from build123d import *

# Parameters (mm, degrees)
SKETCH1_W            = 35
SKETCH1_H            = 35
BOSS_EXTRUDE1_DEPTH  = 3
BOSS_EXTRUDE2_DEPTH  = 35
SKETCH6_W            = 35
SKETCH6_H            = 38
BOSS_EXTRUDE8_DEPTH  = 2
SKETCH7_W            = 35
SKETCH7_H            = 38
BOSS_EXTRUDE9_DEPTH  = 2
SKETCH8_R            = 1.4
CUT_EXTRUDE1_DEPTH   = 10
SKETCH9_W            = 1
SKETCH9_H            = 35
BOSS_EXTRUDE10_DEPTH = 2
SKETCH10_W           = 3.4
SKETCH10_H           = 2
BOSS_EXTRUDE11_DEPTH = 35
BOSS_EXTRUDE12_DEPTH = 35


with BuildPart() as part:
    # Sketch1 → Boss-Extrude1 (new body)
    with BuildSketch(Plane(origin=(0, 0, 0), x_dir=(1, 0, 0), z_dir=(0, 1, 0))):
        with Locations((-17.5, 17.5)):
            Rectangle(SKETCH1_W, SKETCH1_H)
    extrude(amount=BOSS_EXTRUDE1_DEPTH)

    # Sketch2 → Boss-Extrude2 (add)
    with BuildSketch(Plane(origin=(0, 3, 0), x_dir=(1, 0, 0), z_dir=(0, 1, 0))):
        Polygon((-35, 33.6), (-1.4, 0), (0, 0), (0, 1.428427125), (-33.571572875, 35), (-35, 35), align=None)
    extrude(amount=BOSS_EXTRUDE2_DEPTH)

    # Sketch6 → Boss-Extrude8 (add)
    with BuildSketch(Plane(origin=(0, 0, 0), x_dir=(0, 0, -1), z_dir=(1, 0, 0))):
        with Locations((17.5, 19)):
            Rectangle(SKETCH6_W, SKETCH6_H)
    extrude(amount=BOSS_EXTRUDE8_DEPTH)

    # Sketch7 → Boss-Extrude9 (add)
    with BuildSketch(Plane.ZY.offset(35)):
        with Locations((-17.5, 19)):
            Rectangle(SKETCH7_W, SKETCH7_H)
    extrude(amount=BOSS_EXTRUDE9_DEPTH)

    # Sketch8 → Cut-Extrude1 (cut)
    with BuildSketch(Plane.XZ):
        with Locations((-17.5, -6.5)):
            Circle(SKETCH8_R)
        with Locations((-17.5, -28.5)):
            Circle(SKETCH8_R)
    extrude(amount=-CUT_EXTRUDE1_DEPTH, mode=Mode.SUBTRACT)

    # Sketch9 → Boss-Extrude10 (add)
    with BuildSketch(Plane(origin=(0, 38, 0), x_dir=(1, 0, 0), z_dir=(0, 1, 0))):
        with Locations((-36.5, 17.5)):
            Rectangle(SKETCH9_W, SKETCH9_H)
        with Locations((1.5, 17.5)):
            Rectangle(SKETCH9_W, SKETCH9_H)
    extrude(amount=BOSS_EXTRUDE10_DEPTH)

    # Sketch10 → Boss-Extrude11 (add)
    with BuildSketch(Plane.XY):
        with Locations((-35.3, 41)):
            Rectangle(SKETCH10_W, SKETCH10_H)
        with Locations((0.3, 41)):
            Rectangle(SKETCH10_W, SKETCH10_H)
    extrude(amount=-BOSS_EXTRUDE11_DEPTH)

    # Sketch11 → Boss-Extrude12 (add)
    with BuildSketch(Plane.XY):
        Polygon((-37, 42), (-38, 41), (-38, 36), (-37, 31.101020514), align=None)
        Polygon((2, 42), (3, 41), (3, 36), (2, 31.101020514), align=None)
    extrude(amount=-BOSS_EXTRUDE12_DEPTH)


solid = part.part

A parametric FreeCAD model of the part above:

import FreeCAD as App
import Part
import Sketcher
Q = App.Units.Quantity


def add_polygon(sketch, points):
    """Adds a closed chain of lines whose ends are joined by coincident constraints."""
    first, n = sketch.GeometryCount, len(points)
    for a, b in zip(points, points[1:] + points[:1]):
        sketch.addGeometry(Part.LineSegment(App.Vector(*a, 0), App.Vector(*b, 0)), False)
    for i in range(n):
        sketch.addConstraint(Sketcher.Constraint("Coincident", first + i, 2, first + (i + 1) % n, 1))

doc = App.newDocument("Part")
body = doc.addObject("PartDesign::Body", "Body")

# Sketch on XZ plane
sketch1 = doc.addObject("Sketcher::SketchObject", "Sketch")
body.addObject(sketch1)
sketch1.AttachmentSupport = (doc.XZ_Plane, [""])
sketch1.MapMode = "FlatFace"
add_polygon(sketch1, [(-35, -35), (-35, 0), (0, 0), (0, -35)])  # lines 0-3
sketch1.addConstraint([
    Sketcher.Constraint("Vertical", 0),
    Sketcher.Constraint("Horizontal", 1),
    Sketcher.Constraint("Vertical", 2),
    Sketcher.Constraint("Horizontal", 3),
    Sketcher.Constraint("Coincident", 1, 2, -1, 1),
    Sketcher.Constraint("Equal", 3, 0),
    Sketcher.Constraint("DistanceX", 1, 1, 1, 2, 35.0),
])
pad1 = doc.addObject("PartDesign::Pad", "Pad")
body.addObject(pad1)
pad1.Profile = sketch1
pad1.Length = 3
pad1.Reversed = True

# Sketch on XZ plane
sketch2 = doc.addObject("Sketcher::SketchObject", "Sketch001")
body.addObject(sketch2)
sketch2.AttachmentSupport = (doc.XZ_Plane, [""])
sketch2.MapMode = "FlatFace"
sketch2.AttachmentOffset = App.Placement(App.Vector(0, 0, -3), App.Rotation())
add_polygon(sketch2, [(-35, -33.6), (-1.4, 0), (0, 0), (0, -1.4), (-33.6, -35), (-35, -35)])  # lines 0-5
sketch2.addConstraint([
    Sketcher.Constraint("Horizontal", 1),
    Sketcher.Constraint("Vertical", 2),
    Sketcher.Constraint("Horizontal", 4),
    Sketcher.Constraint("Vertical", 5),
    Sketcher.Constraint("Coincident", 1, 2, -1, 1),
    Sketcher.Constraint("Parallel", 0, 3),
    Sketcher.Constraint("Equal", 4, 2),
    Sketcher.Constraint("Angle", 0, Q("45 deg")),
    Sketcher.Constraint("DistanceX", 1, 1, 1, 2, 1.4),
    Sketcher.Constraint("DistanceY", 3, 2, -1, 1, 35.0),
    Sketcher.Constraint("DistanceX", 4, 2, 4, 1, 1.428427),
])
pad2 = doc.addObject("PartDesign::Pad", "Pad001")
body.addObject(pad2)
pad2.Profile = sketch2
pad2.Length = 35
pad2.Reversed = True

# Sketch on YZ plane
sketch3 = doc.addObject("Sketcher::SketchObject", "Sketch002")
body.addObject(sketch3)
sketch3.AttachmentSupport = (doc.YZ_Plane, [""])
sketch3.MapMode = "FlatFace"
add_polygon(sketch3, [(38, 0), (0, 0), (0, -35), (38, -35)])  # lines 0-3
sketch3.addConstraint([
    Sketcher.Constraint("Horizontal", 0),
    Sketcher.Constraint("Vertical", 1),
    Sketcher.Constraint("Horizontal", 2),
    Sketcher.Constraint("Vertical", 3),
    Sketcher.Constraint("Coincident", 0, 2, -1, 1),
    Sketcher.Constraint("DistanceX", 0, 2, 0, 1, 38.0),
    Sketcher.Constraint("DistanceY", 1, 2, 1, 1, 35.0),
])
pad3 = doc.addObject("PartDesign::Pad", "Pad002")
body.addObject(pad3)
pad3.Profile = sketch3
pad3.Length = 2

# Sketch on YZ plane
sketch4 = doc.addObject("Sketcher::SketchObject", "Sketch003")
body.addObject(sketch4)
sketch4.AttachmentSupport = (doc.YZ_Plane, [""])
sketch4.MapMode = "FlatFace"
sketch4.AttachmentOffset = App.Placement(App.Vector(0, 0, -35), App.Rotation())
add_polygon(sketch4, [(38, -35), (0, -35), (0, 0), (38, 0)])  # lines 0-3
sketch4.addConstraint([
    Sketcher.Constraint("Horizontal", 0),
    Sketcher.Constraint("Vertical", 1),
    Sketcher.Constraint("Horizontal", 2),
    Sketcher.Constraint("Vertical", 3),
    Sketcher.Constraint("Coincident", 1, 2, -1, 1),
    Sketcher.Constraint("DistanceX", 0, 2, 0, 1, 38.0),
    Sketcher.Constraint("DistanceY", 1, 1, 1, 2, 35.0),
])
pad4 = doc.addObject("PartDesign::Pad", "Pad003")
body.addObject(pad4)
pad4.Profile = sketch4
pad4.Length = 2
pad4.Reversed = True

# Sketch on XZ plane
sketch5 = doc.addObject("Sketcher::SketchObject", "Sketch004")
body.addObject(sketch5)
sketch5.AttachmentSupport = (doc.XZ_Plane, [""])
sketch5.MapMode = "FlatFace"
sketch5.addGeometry([
    Part.Circle(App.Vector(-17.5, -6.5, 0), App.Vector(0, 0, 1), 1.4),
    Part.Circle(App.Vector(-17.5, -28.5, 0), App.Vector(0, 0, 1), 1.4),
], False)
sketch5.addConstraint([
    Sketcher.Constraint("Equal", 0, 1),
    Sketcher.Constraint("Vertical", 0, 3, 1, 3),
    Sketcher.Constraint("Diameter", 0, 2.8),
    Sketcher.Constraint("DistanceY", 1, 3, 0, 3, 22.0),
    Sketcher.Constraint("DistanceX", 0, 3, -1, 1, 17.5),
    Sketcher.Constraint("DistanceY", 0, 3, -1, 1, 6.5),
])
pocket1 = doc.addObject("PartDesign::Pocket", "Pocket")
body.addObject(pocket1)
pocket1.Profile = sketch5
pocket1.Length = 10

# Sketch on XZ plane
sketch6 = doc.addObject("Sketcher::SketchObject", "Sketch005")
body.addObject(sketch6)
sketch6.AttachmentSupport = (doc.XZ_Plane, [""])
sketch6.MapMode = "FlatFace"
sketch6.AttachmentOffset = App.Placement(App.Vector(0, 0, -38), App.Rotation())
add_polygon(sketch6, [(-37, -35), (-37, 0), (-36, 0), (-36, -35)])  # lines 0-3
add_polygon(sketch6, [(1, -35), (1, 0), (2, 0), (2, -35)])  # lines 4-7
sketch6.addConstraint([
    Sketcher.Constraint("Vertical", 0),
    Sketcher.Constraint("Horizontal", 1),
    Sketcher.Constraint("Vertical", 2),
    Sketcher.Constraint("Horizontal", 3),
    Sketcher.Constraint("Vertical", 4),
    Sketcher.Constraint("Horizontal", 5),
    Sketcher.Constraint("Vertical", 6),
    Sketcher.Constraint("Horizontal", 7),
    Sketcher.Constraint("PointOnObject", 0, 2, -1),
    Sketcher.Constraint("PointOnObject", 4, 2, -1),
    Sketcher.Constraint("Horizontal", 3, 2, 6, 2),
    Sketcher.Constraint("Equal", 3, 5),
    Sketcher.Constraint("DistanceX", 1, 1, 1, 2, 1.0),
    Sketcher.Constraint("DistanceY", 0, 1, 0, 2, 35.0),
    Sketcher.Constraint("DistanceX", 0, 2, -1, 1, 37.0),
    Sketcher.Constraint("DistanceX", -1, 1, 4, 2, 1.0),
])
pad5 = doc.addObject("PartDesign::Pad", "Pad004")
body.addObject(pad5)
pad5.Profile = sketch6
pad5.Length = 2
pad5.Reversed = True

# Sketch on XY plane
sketch7 = doc.addObject("Sketcher::SketchObject", "Sketch006")
body.addObject(sketch7)
sketch7.AttachmentSupport = (doc.XY_Plane, [""])
sketch7.MapMode = "FlatFace"
add_polygon(sketch7, [(-37, 42), (-37, 40), (-33.6, 40), (-33.6, 42)])  # lines 0-3
add_polygon(sketch7, [(-1.4, 42), (-1.4, 40), (2, 40), (2, 42)])  # lines 4-7
sketch7.addConstraint([
    Sketcher.Constraint("Vertical", 0),
    Sketcher.Constraint("Horizontal", 1),
    Sketcher.Constraint("Vertical", 2),
    Sketcher.Constraint("Horizontal", 3),
    Sketcher.Constraint("Vertical", 4),
    Sketcher.Constraint("Horizontal", 5),
    Sketcher.Constraint("Vertical", 6),
    Sketcher.Constraint("Horizontal", 7),
    Sketcher.Constraint("Horizontal", 1, 2, 4, 2),
    Sketcher.Constraint("Horizontal", 3, 2, 6, 2),
    Sketcher.Constraint("Equal", 3, 5),
    Sketcher.Constraint("DistanceY", 0, 2, 0, 1, 2.0),
    Sketcher.Constraint("DistanceX", 1, 1, 1, 2, 3.4),
    Sketcher.Constraint("DistanceX", 0, 2, -1, 1, 37.0),
    Sketcher.Constraint("DistanceY", -1, 1, 0, 2, 40.0),
    Sketcher.Constraint("DistanceX", -1, 1, 5, 2, 2.0),
])
pad6 = doc.addObject("PartDesign::Pad", "Pad005")
body.addObject(pad6)
pad6.Profile = sketch7
pad6.Length = 35
pad6.Reversed = True

# Sketch on XY plane
sketch8 = doc.addObject("Sketcher::SketchObject", "Sketch007")
body.addObject(sketch8)
sketch8.AttachmentSupport = (doc.XY_Plane, [""])
sketch8.MapMode = "FlatFace"
add_polygon(sketch8, [(-37, 42), (-38, 41), (-38, 36), (-37, 31.1)])  # lines 0-3
add_polygon(sketch8, [(3, 41), (2, 42), (2, 31.1), (3, 36)])  # lines 4-7
sketch8.addConstraint([
    Sketcher.Constraint("Vertical", 1),
    Sketcher.Constraint("Vertical", 3),
    Sketcher.Constraint("Vertical", 5),
    Sketcher.Constraint("Vertical", 7),
    Sketcher.Constraint("Perpendicular", 0, 4),
    Sketcher.Constraint("Horizontal", 3, 2, 4, 2),
    Sketcher.Constraint("Horizontal", 2, 2, 5, 2),
    Sketcher.Constraint("Horizontal", 1, 2, 6, 2),
    Sketcher.Constraint("Horizontal", 0, 2, 7, 2),
    Sketcher.Constraint("Equal", 0, 4),
    Sketcher.Constraint("DistanceY", 1, 2, 1, 1, 5.0),
    Sketcher.Constraint("Distance", 2, 5.0),
    Sketcher.Constraint("DistanceX", 0, 2, -1, 1, 38.0),
    Sketcher.Constraint("DistanceY", -1, 1, 0, 2, 41.0),
    Sketcher.Constraint("DistanceX", 2, 2, -1, 1, 37.0),
    Sketcher.Constraint("DistanceX", -1, 1, 4, 2, 2.0),
])
pad7 = doc.addObject("PartDesign::Pad", "Pad006")
body.addObject(pad7)
pad7.Profile = sketch8
pad7.Length = 35
pad7.Reversed = True

doc.recompute()
